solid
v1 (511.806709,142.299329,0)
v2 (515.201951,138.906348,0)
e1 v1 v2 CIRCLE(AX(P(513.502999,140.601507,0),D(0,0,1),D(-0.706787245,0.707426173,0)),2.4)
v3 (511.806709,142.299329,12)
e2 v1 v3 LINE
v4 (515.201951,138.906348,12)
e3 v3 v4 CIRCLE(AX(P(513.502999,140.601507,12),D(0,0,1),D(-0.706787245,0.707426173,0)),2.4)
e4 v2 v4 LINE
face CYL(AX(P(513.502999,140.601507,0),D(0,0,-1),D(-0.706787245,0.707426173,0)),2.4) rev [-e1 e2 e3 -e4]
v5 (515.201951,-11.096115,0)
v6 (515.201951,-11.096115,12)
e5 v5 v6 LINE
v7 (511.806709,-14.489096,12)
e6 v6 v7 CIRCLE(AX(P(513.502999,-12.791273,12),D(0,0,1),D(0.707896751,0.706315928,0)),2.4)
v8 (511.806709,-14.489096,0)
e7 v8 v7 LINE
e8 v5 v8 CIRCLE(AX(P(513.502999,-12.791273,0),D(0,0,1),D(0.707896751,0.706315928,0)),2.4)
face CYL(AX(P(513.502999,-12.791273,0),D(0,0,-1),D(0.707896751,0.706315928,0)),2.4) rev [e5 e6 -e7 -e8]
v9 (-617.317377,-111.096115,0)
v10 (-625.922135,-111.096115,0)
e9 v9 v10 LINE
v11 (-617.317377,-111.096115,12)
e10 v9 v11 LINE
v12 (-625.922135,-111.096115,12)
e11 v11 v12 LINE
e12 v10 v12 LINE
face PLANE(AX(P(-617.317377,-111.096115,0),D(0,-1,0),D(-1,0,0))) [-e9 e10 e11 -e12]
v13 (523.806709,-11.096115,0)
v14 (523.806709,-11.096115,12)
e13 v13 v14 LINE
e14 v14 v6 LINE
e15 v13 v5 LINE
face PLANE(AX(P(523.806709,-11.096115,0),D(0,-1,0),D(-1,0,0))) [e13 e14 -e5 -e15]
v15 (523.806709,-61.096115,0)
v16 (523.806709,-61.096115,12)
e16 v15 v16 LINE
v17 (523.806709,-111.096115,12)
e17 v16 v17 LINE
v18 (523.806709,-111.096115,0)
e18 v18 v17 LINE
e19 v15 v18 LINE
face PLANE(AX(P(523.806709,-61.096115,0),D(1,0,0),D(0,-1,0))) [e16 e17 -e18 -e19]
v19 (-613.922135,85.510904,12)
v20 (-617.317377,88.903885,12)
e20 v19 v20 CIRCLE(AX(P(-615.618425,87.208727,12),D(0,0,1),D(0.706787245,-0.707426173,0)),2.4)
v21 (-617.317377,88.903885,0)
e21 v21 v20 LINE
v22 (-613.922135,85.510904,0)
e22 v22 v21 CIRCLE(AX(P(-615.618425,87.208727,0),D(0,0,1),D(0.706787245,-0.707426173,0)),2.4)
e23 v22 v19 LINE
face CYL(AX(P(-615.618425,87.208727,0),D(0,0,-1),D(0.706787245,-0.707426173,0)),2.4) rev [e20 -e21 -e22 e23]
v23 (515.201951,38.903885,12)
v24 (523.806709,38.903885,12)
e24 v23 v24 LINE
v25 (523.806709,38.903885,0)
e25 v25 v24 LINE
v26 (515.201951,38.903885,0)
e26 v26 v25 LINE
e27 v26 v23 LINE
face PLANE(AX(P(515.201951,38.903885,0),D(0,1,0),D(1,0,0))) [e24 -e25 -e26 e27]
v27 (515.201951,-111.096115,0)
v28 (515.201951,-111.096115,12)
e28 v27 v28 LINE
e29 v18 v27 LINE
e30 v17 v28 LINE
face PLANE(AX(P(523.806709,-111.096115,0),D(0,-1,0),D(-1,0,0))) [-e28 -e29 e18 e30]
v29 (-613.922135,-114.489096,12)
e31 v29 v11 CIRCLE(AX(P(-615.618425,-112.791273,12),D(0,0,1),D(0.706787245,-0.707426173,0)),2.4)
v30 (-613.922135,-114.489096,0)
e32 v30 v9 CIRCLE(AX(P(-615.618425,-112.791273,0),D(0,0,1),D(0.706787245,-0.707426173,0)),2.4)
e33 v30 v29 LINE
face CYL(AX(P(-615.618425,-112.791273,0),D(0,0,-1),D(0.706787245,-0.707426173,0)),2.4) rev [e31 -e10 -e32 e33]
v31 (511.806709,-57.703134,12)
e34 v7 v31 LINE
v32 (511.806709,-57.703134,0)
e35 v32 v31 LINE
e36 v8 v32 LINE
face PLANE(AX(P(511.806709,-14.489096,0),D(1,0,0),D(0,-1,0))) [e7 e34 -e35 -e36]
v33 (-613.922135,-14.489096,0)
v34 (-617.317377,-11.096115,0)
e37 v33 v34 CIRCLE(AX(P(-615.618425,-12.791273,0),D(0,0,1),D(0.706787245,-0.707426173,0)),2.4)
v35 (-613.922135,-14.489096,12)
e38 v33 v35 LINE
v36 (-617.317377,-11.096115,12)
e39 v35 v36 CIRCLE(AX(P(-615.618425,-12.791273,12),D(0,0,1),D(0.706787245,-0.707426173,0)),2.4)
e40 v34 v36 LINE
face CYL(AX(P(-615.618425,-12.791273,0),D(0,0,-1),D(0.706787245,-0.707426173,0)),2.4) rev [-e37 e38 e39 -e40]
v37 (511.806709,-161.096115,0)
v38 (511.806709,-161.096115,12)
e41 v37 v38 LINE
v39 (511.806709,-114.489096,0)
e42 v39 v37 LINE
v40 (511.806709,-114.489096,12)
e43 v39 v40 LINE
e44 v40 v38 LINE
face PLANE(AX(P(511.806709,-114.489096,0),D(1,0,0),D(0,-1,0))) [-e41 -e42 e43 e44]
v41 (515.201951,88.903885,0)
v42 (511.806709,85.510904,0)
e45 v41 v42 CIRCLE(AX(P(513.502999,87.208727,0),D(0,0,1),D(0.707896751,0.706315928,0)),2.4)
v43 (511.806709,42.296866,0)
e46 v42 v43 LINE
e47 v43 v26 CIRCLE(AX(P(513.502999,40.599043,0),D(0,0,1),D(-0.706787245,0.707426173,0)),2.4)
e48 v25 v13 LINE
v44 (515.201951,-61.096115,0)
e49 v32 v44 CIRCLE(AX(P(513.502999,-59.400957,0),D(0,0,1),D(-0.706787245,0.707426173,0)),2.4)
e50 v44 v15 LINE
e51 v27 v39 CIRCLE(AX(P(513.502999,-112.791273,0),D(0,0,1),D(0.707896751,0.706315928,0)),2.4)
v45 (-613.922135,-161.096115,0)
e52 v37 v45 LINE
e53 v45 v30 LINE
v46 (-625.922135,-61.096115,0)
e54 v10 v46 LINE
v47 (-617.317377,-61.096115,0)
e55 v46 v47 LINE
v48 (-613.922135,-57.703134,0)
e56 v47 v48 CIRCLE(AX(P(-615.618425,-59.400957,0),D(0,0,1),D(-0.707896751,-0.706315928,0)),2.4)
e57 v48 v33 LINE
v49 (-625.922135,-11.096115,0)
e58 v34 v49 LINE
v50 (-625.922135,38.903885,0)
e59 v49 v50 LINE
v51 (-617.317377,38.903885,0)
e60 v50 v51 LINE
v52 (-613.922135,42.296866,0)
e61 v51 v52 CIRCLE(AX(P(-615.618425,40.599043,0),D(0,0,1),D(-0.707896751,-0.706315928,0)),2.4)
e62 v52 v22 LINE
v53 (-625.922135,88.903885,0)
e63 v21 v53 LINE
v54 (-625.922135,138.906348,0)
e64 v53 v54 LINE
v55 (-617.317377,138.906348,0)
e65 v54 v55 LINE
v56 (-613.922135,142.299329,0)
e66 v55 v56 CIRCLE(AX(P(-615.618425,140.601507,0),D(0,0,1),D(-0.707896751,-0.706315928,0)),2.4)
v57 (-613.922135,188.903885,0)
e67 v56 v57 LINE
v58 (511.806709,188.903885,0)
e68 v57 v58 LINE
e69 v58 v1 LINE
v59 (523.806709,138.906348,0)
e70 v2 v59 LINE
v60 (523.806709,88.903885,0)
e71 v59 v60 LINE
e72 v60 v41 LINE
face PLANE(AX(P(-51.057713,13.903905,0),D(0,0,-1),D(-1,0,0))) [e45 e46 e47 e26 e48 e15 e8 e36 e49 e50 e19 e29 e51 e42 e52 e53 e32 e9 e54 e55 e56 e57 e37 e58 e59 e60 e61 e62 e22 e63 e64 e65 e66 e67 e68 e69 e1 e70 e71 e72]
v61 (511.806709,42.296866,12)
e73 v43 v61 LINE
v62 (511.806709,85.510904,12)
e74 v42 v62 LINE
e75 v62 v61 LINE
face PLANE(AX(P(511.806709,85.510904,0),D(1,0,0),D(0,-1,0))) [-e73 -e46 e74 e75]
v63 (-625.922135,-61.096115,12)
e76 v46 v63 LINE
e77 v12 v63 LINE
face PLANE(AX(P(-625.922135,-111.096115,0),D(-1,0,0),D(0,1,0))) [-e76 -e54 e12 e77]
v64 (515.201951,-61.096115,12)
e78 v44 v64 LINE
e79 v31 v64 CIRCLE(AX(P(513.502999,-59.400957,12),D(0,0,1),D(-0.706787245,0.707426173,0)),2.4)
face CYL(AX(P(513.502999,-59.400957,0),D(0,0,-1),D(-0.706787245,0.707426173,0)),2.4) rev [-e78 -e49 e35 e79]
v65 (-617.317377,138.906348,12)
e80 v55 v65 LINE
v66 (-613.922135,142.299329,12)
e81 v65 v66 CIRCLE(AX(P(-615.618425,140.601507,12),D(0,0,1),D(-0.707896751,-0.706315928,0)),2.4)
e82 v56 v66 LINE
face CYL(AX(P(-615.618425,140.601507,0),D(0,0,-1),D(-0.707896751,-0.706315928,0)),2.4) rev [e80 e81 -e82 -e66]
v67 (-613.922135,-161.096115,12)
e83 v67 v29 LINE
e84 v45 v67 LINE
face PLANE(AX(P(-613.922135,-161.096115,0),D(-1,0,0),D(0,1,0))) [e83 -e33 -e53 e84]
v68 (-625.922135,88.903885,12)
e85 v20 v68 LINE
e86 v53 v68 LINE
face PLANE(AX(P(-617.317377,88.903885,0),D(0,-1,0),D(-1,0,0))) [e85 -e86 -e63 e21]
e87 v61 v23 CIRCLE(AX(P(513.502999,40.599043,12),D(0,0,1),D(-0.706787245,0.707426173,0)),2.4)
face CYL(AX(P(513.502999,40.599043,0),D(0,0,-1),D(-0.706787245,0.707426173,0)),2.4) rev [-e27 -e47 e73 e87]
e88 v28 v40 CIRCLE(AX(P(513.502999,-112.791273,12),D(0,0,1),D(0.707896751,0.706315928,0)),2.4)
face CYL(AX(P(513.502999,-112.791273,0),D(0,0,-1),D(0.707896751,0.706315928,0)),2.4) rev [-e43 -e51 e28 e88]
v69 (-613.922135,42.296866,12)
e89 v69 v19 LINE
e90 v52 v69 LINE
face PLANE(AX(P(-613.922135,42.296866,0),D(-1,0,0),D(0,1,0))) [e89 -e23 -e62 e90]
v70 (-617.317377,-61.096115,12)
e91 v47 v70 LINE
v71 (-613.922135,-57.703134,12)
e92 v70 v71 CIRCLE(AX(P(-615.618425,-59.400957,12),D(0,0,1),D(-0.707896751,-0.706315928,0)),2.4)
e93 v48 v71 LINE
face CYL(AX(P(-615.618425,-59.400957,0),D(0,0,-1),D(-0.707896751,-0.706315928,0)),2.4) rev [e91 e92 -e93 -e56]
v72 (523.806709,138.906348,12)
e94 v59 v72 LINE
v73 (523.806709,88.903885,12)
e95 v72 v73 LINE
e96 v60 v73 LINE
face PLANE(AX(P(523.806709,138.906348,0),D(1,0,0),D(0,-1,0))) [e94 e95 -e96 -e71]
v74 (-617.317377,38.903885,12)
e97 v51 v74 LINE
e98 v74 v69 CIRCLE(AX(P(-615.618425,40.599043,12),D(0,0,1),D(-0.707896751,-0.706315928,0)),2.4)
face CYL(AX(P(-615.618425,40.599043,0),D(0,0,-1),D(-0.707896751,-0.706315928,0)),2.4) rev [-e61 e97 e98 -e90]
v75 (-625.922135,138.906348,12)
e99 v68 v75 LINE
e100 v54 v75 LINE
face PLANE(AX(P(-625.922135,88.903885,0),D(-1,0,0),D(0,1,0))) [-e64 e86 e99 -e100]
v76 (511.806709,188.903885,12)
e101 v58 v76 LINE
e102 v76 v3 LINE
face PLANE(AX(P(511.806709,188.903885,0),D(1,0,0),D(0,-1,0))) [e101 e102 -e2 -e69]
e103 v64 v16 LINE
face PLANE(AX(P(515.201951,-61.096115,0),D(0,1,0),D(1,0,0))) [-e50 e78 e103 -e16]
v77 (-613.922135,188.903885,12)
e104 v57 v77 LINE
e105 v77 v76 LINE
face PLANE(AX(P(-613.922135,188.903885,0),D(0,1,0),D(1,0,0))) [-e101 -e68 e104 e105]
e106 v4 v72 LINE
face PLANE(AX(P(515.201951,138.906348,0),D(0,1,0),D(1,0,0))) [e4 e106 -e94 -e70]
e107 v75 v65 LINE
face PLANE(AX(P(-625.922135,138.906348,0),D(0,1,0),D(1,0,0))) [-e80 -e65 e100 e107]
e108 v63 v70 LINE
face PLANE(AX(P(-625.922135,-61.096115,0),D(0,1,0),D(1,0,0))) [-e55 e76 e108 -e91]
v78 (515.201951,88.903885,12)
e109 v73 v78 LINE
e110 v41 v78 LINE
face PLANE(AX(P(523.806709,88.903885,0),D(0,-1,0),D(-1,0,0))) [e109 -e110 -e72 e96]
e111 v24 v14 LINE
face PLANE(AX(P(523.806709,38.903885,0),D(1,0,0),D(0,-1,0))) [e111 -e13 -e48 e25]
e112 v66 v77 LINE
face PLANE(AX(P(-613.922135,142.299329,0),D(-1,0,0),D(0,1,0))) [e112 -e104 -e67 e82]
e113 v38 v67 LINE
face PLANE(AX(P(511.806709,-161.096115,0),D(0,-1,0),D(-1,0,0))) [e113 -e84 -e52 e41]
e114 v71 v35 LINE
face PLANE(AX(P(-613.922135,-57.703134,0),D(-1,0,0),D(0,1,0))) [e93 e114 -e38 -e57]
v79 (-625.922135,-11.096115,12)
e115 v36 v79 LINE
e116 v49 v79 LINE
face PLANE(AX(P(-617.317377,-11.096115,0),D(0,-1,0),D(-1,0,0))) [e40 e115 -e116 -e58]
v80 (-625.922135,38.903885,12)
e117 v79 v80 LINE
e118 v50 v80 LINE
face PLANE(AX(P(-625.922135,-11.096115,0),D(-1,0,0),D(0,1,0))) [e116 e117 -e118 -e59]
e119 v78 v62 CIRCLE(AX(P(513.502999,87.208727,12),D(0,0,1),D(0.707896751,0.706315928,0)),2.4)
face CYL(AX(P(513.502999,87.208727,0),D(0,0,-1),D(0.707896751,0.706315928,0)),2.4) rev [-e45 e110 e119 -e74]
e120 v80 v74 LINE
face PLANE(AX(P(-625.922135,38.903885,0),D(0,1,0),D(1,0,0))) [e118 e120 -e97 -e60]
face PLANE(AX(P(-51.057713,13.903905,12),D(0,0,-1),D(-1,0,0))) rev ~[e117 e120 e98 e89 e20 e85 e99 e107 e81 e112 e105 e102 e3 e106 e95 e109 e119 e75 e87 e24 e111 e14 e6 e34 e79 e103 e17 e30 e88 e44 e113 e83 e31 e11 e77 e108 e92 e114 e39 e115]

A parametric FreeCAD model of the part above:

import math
import FreeCAD as App
import Part
import Sketcher

V = App.Vector
Q = App.Units.Quantity

doc = App.newDocument("Part")
body = doc.addObject("PartDesign::Body", "Body")

# Sketch on XY plane
sketch1 = doc.addObject("Sketcher::SketchObject", "Sketch")
body.addObject(sketch1)
sketch1.AttachmentSupport = (doc.XY_Plane, [""])
sketch1.MapMode = "FlatFace"
sketch1.addGeometry([
    Part.LineSegment(V(511.8, 142.3, 0), V(511.8, 188.9, 0)),  # 0
    Part.LineSegment(V(511.8, 188.9, 0), V(-613.9, 188.9, 0)),  # 1
    Part.LineSegment(V(-613.9, 188.9, 0), V(-613.9, 142.3, 0)),  # 2
    Part.ArcOfCircle(Part.Circle(V(-615.6, 140.6, 0), V(0, 0, 1), 2.4), math.radians(-135), math.radians(45)),  # 3
    Part.LineSegment(V(-617.3, 138.9, 0), V(-625.9, 138.9, 0)),  # 4
    Part.LineSegment(V(-625.9, 138.9, 0), V(-625.9, 88.9, 0)),  # 5
    Part.LineSegment(V(-625.9, 88.9, 0), V(-617.3, 88.9, 0)),  # 6
    Part.ArcOfCircle(Part.Circle(V(-615.6, 87.2, 0), V(0, 0, 1), 2.4), math.radians(-45), math.radians(135)),  # 7
    Part.LineSegment(V(-613.9, 85.5, 0), V(-613.9, 42.3, 0)),  # 8
    Part.ArcOfCircle(Part.Circle(V(-615.6, 40.6, 0), V(0, 0, 1), 2.4), math.radians(-135), math.radians(45)),  # 9
    Part.LineSegment(V(-617.3, 38.9, 0), V(-625.9, 38.9, 0)),  # 10
    Part.LineSegment(V(-625.9, 38.9, 0), V(-625.9, -11.1, 0)),  # 11
    Part.LineSegment(V(-625.9, -11.1, 0), V(-617.3, -11.1, 0)),  # 12
    Part.ArcOfCircle(Part.Circle(V(-615.6, -12.8, 0), V(0, 0, 1), 2.4), math.radians(-45), math.radians(135)),  # 13
    Part.LineSegment(V(-613.9, -14.5, 0), V(-613.9, -57.7, 0)),  # 14
    Part.ArcOfCircle(Part.Circle(V(-615.6, -59.4, 0), V(0, 0, 1), 2.4), math.radians(-135), math.radians(45)),  # 15
    Part.LineSegment(V(-617.3, -61.1, 0), V(-625.9, -61.1, 0)),  # 16
    Part.LineSegment(V(-625.9, -61.1, 0), V(-625.9, -111.1, 0)),  # 17
    Part.LineSegment(V(-625.9, -111.1, 0), V(-617.3, -111.1, 0)),  # 18
    Part.ArcOfCircle(Part.Circle(V(-615.6, -112.8, 0), V(0, 0, 1), 2.4), math.radians(-45), math.radians(135)),  # 19
    Part.LineSegment(V(-613.9, -114.5, 0), V(-613.9, -161.1, 0)),  # 20
    Part.LineSegment(V(-613.9, -161.1, 0), V(511.8, -161.1, 0)),  # 21
    Part.LineSegment(V(511.8, -161.1, 0), V(511.8, -114.5, 0)),  # 22
    Part.ArcOfCircle(Part.Circle(V(513.5, -112.8, 0), V(0, 0, 1), 2.4), math.radians(45), math.radians(225)),  # 23
    Part.LineSegment(V(515.2, -111.1, 0), V(523.8, -111.1, 0)),  # 24
    Part.LineSegment(V(523.8, -111.1, 0), V(523.8, -61.1, 0)),  # 25
    Part.LineSegment(V(523.8, -61.1, 0), V(515.2, -61.1, 0)),  # 26
    Part.ArcOfCircle(Part.Circle(V(513.5, -59.4, 0), V(0, 0, 1), 2.4), math.radians(135), math.radians(315)),  # 27
    Part.LineSegment(V(511.8, -57.7, 0), V(511.8, -14.5, 0)),  # 28
    Part.ArcOfCircle(Part.Circle(V(513.5, -12.8, 0), V(0, 0, 1), 2.4), math.radians(45), math.radians(225)),  # 29
    Part.LineSegment(V(515.2, -11.1, 0), V(523.8, -11.1, 0)),  # 30
    Part.LineSegment(V(523.8, -11.1, 0), V(523.8, 38.9, 0)),  # 31
    Part.LineSegment(V(523.8, 38.9, 0), V(515.2, 38.9, 0)),  # 32
    Part.ArcOfCircle(Part.Circle(V(513.5, 40.6, 0), V(0, 0, 1), 2.4), math.radians(135), math.radians(315)),  # 33
    Part.LineSegment(V(511.8, 42.3, 0), V(511.8, 85.5, 0)),  # 34
    Part.ArcOfCircle(Part.Circle(V(513.5, 87.2, 0), V(0, 0, 1), 2.4), math.radians(45), math.radians(225)),  # 35
    Part.LineSegment(V(515.2, 88.9, 0), V(523.8, 88.9, 0)),  # 36
    Part.LineSegment(V(523.8, 88.9, 0), V(523.8, 138.9, 0)),  # 37
    Part.LineSegment(V(523.8, 138.9, 0), V(515.2, 138.9, 0)),  # 38
    Part.ArcOfCircle(Part.Circle(V(513.5, 140.6, 0), V(0, 0, 1), 2.4), math.radians(135), math.radians(315)),  # 39
], False)
sketch1.addConstraint([
    Sketcher.Constraint("Coincident", 0, 2, 1, 1),
    Sketcher.Constraint("Coincident", 1, 2, 2, 1),
    Sketcher.Constraint("Coincident", 2, 2, 3, 2),
    Sketcher.Constraint("Coincident", 3, 1, 4, 1),
    Sketcher.Constraint("Coincident", 4, 2, 5, 1),
    Sketcher.Constraint("Coincident", 5, 2, 6, 1),
    Sketcher.Constraint("Coincident", 6, 2, 7, 2),
    Sketcher.Constraint("Coincident", 7, 1, 8, 1),
    Sketcher.Constraint("Coincident", 8, 2, 9, 2),
    Sketcher.Constraint("Coincident", 9, 1, 10, 1),
    Sketcher.Constraint("Coincident", 10, 2, 11, 1),
    Sketcher.Constraint("Coincident", 11, 2, 12, 1),
    Sketcher.Constraint("Coincident", 12, 2, 13, 2),
    Sketcher.Constraint("Coincident", 13, 1, 14, 1),
    Sketcher.Constraint("Coincident", 14, 2, 15, 2),
    Sketcher.Constraint("Coincident", 15, 1, 16, 1),
    Sketcher.Constraint("Coincident", 16, 2, 17, 1),
    Sketcher.Constraint("Coincident", 17, 2, 18, 1),
    Sketcher.Constraint("Coincident", 18, 2, 19, 2),
    Sketcher.Constraint("Coincident", 19, 1, 20, 1),
    Sketcher.Constraint("Coincident", 20, 2, 21, 1),
    Sketcher.Constraint("Coincident", 21, 2, 22, 1),
    Sketcher.Constraint("Coincident", 22, 2, 23, 2),
    Sketcher.Constraint("Coincident", 23, 1, 24, 1),
    Sketcher.Constraint("Coincident", 24, 2, 25, 1),
    Sketcher.Constraint("Coincident", 25, 2, 26, 1),
    Sketcher.Constraint("Coincident", 26, 2, 27, 2),
    Sketcher.Constraint("Coincident", 27, 1, 28, 1),
    Sketcher.Constraint("Coincident", 28, 2, 29, 2),
    Sketcher.Constraint("Coincident", 29, 1, 30, 1),
    Sketcher.Constraint("Coincident", 30, 2, 31, 1),
    Sketcher.Constraint("Coincident", 31, 2, 32, 1),
    Sketcher.Constraint("Coincident", 32, 2, 33, 2),
    Sketcher.Constraint("Coincident", 33, 1, 34, 1),
    Sketcher.Constraint("Coincident", 34, 2, 35, 2),
    Sketcher.Constraint("Coincident", 35, 1, 36, 1),
    Sketcher.Constraint("Coincident", 36, 2, 37, 1),
    Sketcher.Constraint("Coincident", 37, 2, 38, 1),
    Sketcher.Constraint("Coincident", 38, 2, 39, 2),
    Sketcher.Constraint("Coincident", 39, 1, 0, 1),
    Sketcher.Constraint("Vertical", 0),
    Sketcher.Constraint("Horizontal", 1),
    Sketcher.Constraint("Vertical", 2),
    Sketcher.Constraint("Horizontal", 4),
    Sketcher.Constraint("Vertical", 5),
    Sketcher.Constraint("Horizontal", 6),
    Sketcher.Constraint("Vertical", 8),
    Sketcher.Constraint("Horizontal", 10),
    Sketcher.Constraint("Vertical", 11),
    Sketcher.Constraint("Horizontal", 12),
    Sketcher.Constraint("Vertical", 14),
    Sketcher.Constraint("Horizontal", 16),
    Sketcher.Constraint("Vertical", 17),
    Sketcher.Constraint("Horizontal", 18),
    Sketcher.Constraint("Vertical", 20),
    Sketcher.Constraint("Horizontal", 21),
    Sketcher.Constraint("Vertical", 22),
    Sketcher.Constraint("Horizontal", 24),
    Sketcher.Constraint("Vertical", 25),
    Sketcher.Constraint("Horizontal", 26),
    Sketcher.Constraint("Vertical", 28),
    Sketcher.Constraint("Horizontal", 30),
    Sketcher.Constraint("Vertical", 31),
    Sketcher.Constraint("Horizontal", 32),
    Sketcher.Constraint("Vertical", 34),
    Sketcher.Constraint("Horizontal", 36),
    Sketcher.Constraint("Vertical", 37),
    Sketcher.Constraint("Horizontal", 38),
    Sketcher.Constraint("Equal", 3, 7),
    Sketcher.Constraint("Equal", 7, 9),
    Sketcher.Constraint("Equal", 9, 13),
    Sketcher.Constraint("Equal", 13, 15),
    Sketcher.Constraint("Equal", 15, 19),
    Sketcher.Constraint("Equal", 19, 23),
    Sketcher.Constraint("Equal", 23, 27),
    Sketcher.Constraint("Equal", 27, 29),
    Sketcher.Constraint("Equal", 29, 33),
    Sketcher.Constraint("Equal", 33, 35),
    Sketcher.Constraint("Equal", 35, 39),
    Sketcher.Constraint("Horizontal", 19, 3, 23, 3),
    Sketcher.Constraint("Horizontal", 15, 3, 27, 3),
    Sketcher.Constraint("Horizontal", 13, 3, 29, 3),
    Sketcher.Constraint("Horizontal", 9, 3, 33, 3),
    Sketcher.Constraint("Horizontal", 7, 3, 35, 3),
    Sketcher.Constraint("Horizontal", 3, 3, 39, 3),
    Sketcher.Constraint("Horizontal", 19, 1, 22, 2),
    Sketcher.Constraint("Horizontal", 18, 2, 23, 1),
    Sketcher.Constraint("Horizontal", 16, 2, 25, 2),
    Sketcher.Constraint("Horizontal", 14, 2, 27, 1),
    Sketcher.Constraint("Horizontal", 13, 1, 28, 2),
    Sketcher.Constraint("Horizontal", 12, 2, 29, 1),
    Sketcher.Constraint("Horizontal", 10, 2, 31, 2),
    Sketcher.Constraint("Horizontal", 8, 2, 33, 1),
    Sketcher.Constraint("Horizontal", 7, 1, 34, 2),
    Sketcher.Constraint("Horizontal", 6, 2, 35, 1),
    Sketcher.Constraint("Horizontal", 4, 2, 37, 2),
    Sketcher.Constraint("Horizontal", 2, 2, 39, 1),
    Sketcher.Constraint("Vertical", 3, 3, 7, 3),
    Sketcher.Constraint("Vertical", 7, 3, 9, 3),
    Sketcher.Constraint("Vertical", 9, 3, 13, 3),
    Sketcher.Constraint("Vertical", 13, 3, 15, 3),
    Sketcher.Constraint("Vertical", 15, 3, 19, 3),
    Sketcher.Constraint("Vertical", 23, 3, 27, 3),
    Sketcher.Constraint("Vertical", 29, 3, 33, 3),
    Sketcher.Constraint("Vertical", 35, 3, 39, 3),
    Sketcher.Constraint("Vertical", 3, 1, 6, 2),
    Sketcher.Constraint("Vertical", 2, 2, 7, 1),
    Sketcher.Constraint("Vertical", 6, 2, 9, 1),
    Sketcher.Constraint("Vertical", 5, 2, 10, 2),
    Sketcher.Constraint("Vertical", 9, 1, 12, 2),
    Sketcher.Constraint("Vertical", 8, 2, 13, 1),
    Sketcher.Constraint("Vertical", 12, 2, 15, 1),
    Sketcher.Constraint("Vertical", 11, 2, 16, 2),
    Sketcher.Constraint("Vertical", 15, 1, 18, 2),
    Sketcher.Constraint("Vertical", 14, 2, 19, 1),
    Sketcher.Constraint("Vertical", 25, 2, 30, 2),
    Sketcher.Constraint("Vertical", 31, 2, 36, 2),
    Sketcher.Constraint("Equal", 18, 24),
    Sketcher.Constraint("Equal", 8, 14),
    Sketcher.Constraint("Equal", 11, 17),
    Sketcher.Constraint("Radius", 3, Q("2.4 mm")),
    Sketcher.Constraint("DistanceY", 11, 2, 11, 1, Q("50 mm")),
    Sketcher.Constraint("DistanceY", 13, 3, 7, 3, Q("100 mm")),
    Sketcher.Constraint("DistanceX", 4, 2, 2, 2, Q("12 mm")),
    Sketcher.Constraint("DistanceY", 20, 2, 18, 2, Q("50 mm")),
    Sketcher.Constraint("DistanceX", -1, 1, 23, 3, Q("513.502999 mm")),
    Sketcher.Constraint("DistanceX", 4, 2, 4, 1, Q("8.604758 mm")),
    Sketcher.Constraint("DistanceX", 1, 2, 1, 1, Q("1125.728845 mm")),
    Sketcher.Constraint("DistanceY", 0, 1, 0, 2, Q("46.604556 mm")),
    Sketcher.Constraint("DistanceY", 5, 2, 5, 1, Q("50.002463 mm")),
    Sketcher.Constraint("DistanceX", -1, 1, 0, 2, Q("511.806709 mm")),
    Sketcher.Constraint("DistanceY", -1, 1, 2, 2, Q("142.299329 mm")),
])
pad1 = doc.addObject("PartDesign::Pad", "Pad")
body.addObject(pad1)
pad1.Profile = sketch1
pad1.Length = 12

doc.recompute()
